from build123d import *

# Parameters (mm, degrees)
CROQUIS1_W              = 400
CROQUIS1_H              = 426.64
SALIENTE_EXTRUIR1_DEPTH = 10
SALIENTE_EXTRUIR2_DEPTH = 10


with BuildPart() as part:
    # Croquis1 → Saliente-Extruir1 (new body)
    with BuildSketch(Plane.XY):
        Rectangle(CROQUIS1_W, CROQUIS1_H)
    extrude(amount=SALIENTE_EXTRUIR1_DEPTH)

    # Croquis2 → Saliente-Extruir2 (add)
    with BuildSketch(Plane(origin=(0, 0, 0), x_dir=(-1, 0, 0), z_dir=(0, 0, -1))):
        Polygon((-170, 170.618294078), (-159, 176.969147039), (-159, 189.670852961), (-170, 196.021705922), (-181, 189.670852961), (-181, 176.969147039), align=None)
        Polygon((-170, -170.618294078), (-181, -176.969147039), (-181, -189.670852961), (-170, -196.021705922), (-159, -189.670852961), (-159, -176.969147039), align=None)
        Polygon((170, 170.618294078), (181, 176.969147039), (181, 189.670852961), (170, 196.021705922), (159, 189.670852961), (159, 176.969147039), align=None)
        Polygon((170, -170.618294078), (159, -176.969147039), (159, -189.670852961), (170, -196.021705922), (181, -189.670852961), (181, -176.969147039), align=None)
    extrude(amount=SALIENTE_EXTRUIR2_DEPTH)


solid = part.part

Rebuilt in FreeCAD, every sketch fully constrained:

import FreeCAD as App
import Part
import Sketcher

V = App.Vector
Q = App.Units.Quantity

doc = App.newDocument("Part")
body = doc.addObject("PartDesign::Body", "Body")

# Sketch on XY plane
sketch1 = body.newObject("Sketcher::SketchObject", "Sketch")
sketch1.AttachmentSupport = (doc.getObject("XY_Plane"), [""])
sketch1.MapMode = "FlatFace"
sketch1.addGeometry(Part.LineSegment(V(-200, 213, 0), V(-200, -213, 0)), False)
sketch1.addGeometry(Part.LineSegment(V(-200, -213, 0), V(200, -213, 0)), False)
sketch1.addGeometry(Part.LineSegment(V(200, -213, 0), V(200, 213, 0)), False)
sketch1.addGeometry(Part.LineSegment(V(200, 213, 0), V(-200, 213, 0)), False)
sketch1.addConstraint(Sketcher.Constraint("Coincident", 0, 2, 1, 1))
sketch1.addConstraint(Sketcher.Constraint("Coincident", 1, 2, 2, 1))
sketch1.addConstraint(Sketcher.Constraint("Coincident", 2, 2, 3, 1))
sketch1.addConstraint(Sketcher.Constraint("Coincident", 3, 2, 0, 1))
sketch1.addConstraint(Sketcher.Constraint("Vertical", 0))
sketch1.addConstraint(Sketcher.Constraint("Horizontal", 1))
sketch1.addConstraint(Sketcher.Constraint("Vertical", 2))
sketch1.addConstraint(Sketcher.Constraint("Horizontal", 3))
sketch1.addConstraint(Sketcher.Constraint("Symmetric", 0, 2, 2, 2, -1, 1))
sketch1.addConstraint(Sketcher.Constraint("DistanceX", 1, 1, 1, 2, 400.0))
sketch1.addConstraint(Sketcher.Constraint("DistanceY", 0, 2, 0, 1, 426.64))
pad1 = body.newObject("PartDesign::Pad", "Pad")
pad1.Profile = sketch1
pad1.Length = 10

# Sketch on XY plane
sketch2 = body.newObject("Sketcher::SketchObject", "Sketch001")
sketch2.AttachmentSupport = (doc.getObject("XY_Plane"), [""])
sketch2.MapMode = "FlatFace"
sketch2.addGeometry(Part.LineSegment(V(170, 171, 0), V(159, 177, 0)), False)
sketch2.addGeometry(Part.LineSegment(V(159, 177, 0), V(159, 190, 0)), False)
sketch2.addGeometry(Part.LineSegment(V(159, 190, 0), V(170, 196, 0)), False)
sketch2.addGeometry(Part.LineSegment(V(170, 196, 0), V(181, 190, 0)), False)
sketch2.addGeometry(Part.LineSegment(V(181, 190, 0), V(181, 177, 0)), False)
sketch2.addGeometry(Part.LineSegment(V(181, 177, 0), V(170, 171, 0)), False)
sketch2.addGeometry(Part.LineSegment(V(170, -171, 0), V(181, -177, 0)), False)
sketch2.addGeometry(Part.LineSegment(V(181, -177, 0), V(181, -190, 0)), False)
sketch2.addGeometry(Part.LineSegment(V(181, -190, 0), V(170, -196, 0)), False)
sketch2.addGeometry(Part.LineSegment(V(170, -196, 0), V(159, -190, 0)), False)
sketch2.addGeometry(Part.LineSegment(V(159, -190, 0), V(159, -177, 0)), False)
sketch2.addGeometry(Part.LineSegment(V(159, -177, 0), V(170, -171, 0)), False)
sketch2.addGeometry(Part.LineSegment(V(-170, 171, 0), V(-181, 177, 0)), False)
sketch2.addGeometry(Part.LineSegment(V(-181, 177, 0), V(-181, 190, 0)), False)
sketch2.addGeometry(Part.LineSegment(V(-181, 190, 0), V(-170, 196, 0)), False)
sketch2.addGeometry(Part.LineSegment(V(-170, 196, 0), V(-159, 190, 0)), False)
sketch2.addGeometry(Part.LineSegment(V(-159, 190, 0), V(-159, 177, 0)), False)
sketch2.addGeometry(Part.LineSegment(V(-159, 177, 0), V(-170, 171, 0)), False)
sketch2.addGeometry(Part.LineSegment(V(-170, -171, 0), V(-159, -177, 0)), False)
sketch2.addGeometry(Part.LineSegment(V(-159, -177, 0), V(-159, -190, 0)), False)
sketch2.addGeometry(Part.LineSegment(V(-159, -190, 0), V(-170, -196, 0)), False)
sketch2.addGeometry(Part.LineSegment(V(-170, -196, 0), V(-181, -190, 0)), False)
sketch2.addGeometry(Part.LineSegment(V(-181, -190, 0), V(-181, -177, 0)), False)
sketch2.addGeometry(Part.LineSegment(V(-181, -177, 0), V(-170, -171, 0)), False)
sketch2.addConstraint(Sketcher.Constraint("Coincident", 0, 2, 1, 1))
sketch2.addConstraint(Sketcher.Constraint("Coincident", 1, 2, 2, 1))
sketch2.addConstraint(Sketcher.Constraint("Coincident", 2, 2, 3, 1))
sketch2.addConstraint(Sketcher.Constraint("Coincident", 3, 2, 4, 1))
sketch2.addConstraint(Sketcher.Constraint("Coincident", 4, 2, 5, 1))
sketch2.addConstraint(Sketcher.Constraint("Coincident", 5, 2, 0, 1))
sketch2.addConstraint(Sketcher.Constraint("Coincident", 6, 2, 7, 1))
sketch2.addConstraint(Sketcher.Constraint("Coincident", 7, 2, 8, 1))
sketch2.addConstraint(Sketcher.Constraint("Coincident", 8, 2, 9, 1))
sketch2.addConstraint(Sketcher.Constraint("Coincident", 9, 2, 10, 1))
sketch2.addConstraint(Sketcher.Constraint("Coincident", 10, 2, 11, 1))
sketch2.addConstraint(Sketcher.Constraint("Coincident", 11, 2, 6, 1))
sketch2.addConstraint(Sketcher.Constraint("Coincident", 12, 2, 13, 1))
sketch2.addConstraint(Sketcher.Constraint("Coincident", 13, 2, 14, 1))
sketch2.addConstraint(Sketcher.Constraint("Coincident", 14, 2, 15, 1))
sketch2.addConstraint(Sketcher.Constraint("Coincident", 15, 2, 16, 1))
sketch2.addConstraint(Sketcher.Constraint("Coincident", 16, 2, 17, 1))
sketch2.addConstraint(Sketcher.Constraint("Coincident", 17, 2, 12, 1))
sketch2.addConstraint(Sketcher.Constraint("Coincident", 18, 2, 19, 1))
sketch2.addConstraint(Sketcher.Constraint("Coincident", 19, 2, 20, 1))
sketch2.addConstraint(Sketcher.Constraint("Coincident", 20, 2, 21, 1))
sketch2.addConstraint(Sketcher.Constraint("Coincident", 21, 2, 22, 1))
sketch2.addConstraint(Sketcher.Constraint("Coincident", 22, 2, 23, 1))
sketch2.addConstraint(Sketcher.Constraint("Coincident", 23, 2, 18, 1))
sketch2.addConstraint(Sketcher.Constraint("Vertical", 1))
sketch2.addConstraint(Sketcher.Constraint("Vertical", 4))
sketch2.addConstraint(Sketcher.Constraint("Vertical", 7))
sketch2.addConstraint(Sketcher.Constraint("Vertical", 10))
sketch2.addConstraint(Sketcher.Constraint("Vertical", 13))
sketch2.addConstraint(Sketcher.Constraint("Vertical", 16))
sketch2.addConstraint(Sketcher.Constraint("Vertical", 19))
sketch2.addConstraint(Sketcher.Constraint("Vertical", 22))
sketch2.addConstraint(Sketcher.Constraint("Symmetric", 6, 2, 12, 2, -1, 1))
sketch2.addConstraint(Sketcher.Constraint("Symmetric", 8, 2, 14, 2, -1, 1))
sketch2.addConstraint(Sketcher.Constraint("Symmetric", 9, 2, 15, 2, -1, 1))
sketch2.addConstraint(Sketcher.Constraint("Symmetric", 11, 2, 17, 2, -1, 1))
sketch2.addConstraint(Sketcher.Constraint("Symmetric", 0, 2, 18, 2, -1, 1))
sketch2.addConstraint(Sketcher.Constraint("Symmetric", 2, 2, 20, 2, -1, 1))
sketch2.addConstraint(Sketcher.Constraint("Symmetric", 3, 2, 21, 2, -1, 1))
sketch2.addConstraint(Sketcher.Constraint("Symmetric", 5, 2, 23, 2, -1, 1))
sketch2.addConstraint(Sketcher.Constraint("Symmetric", 4, 2, 12, 2, -2))
sketch2.addConstraint(Sketcher.Constraint("Symmetric", 2, 2, 14, 2, -2))
sketch2.addConstraint(Sketcher.Constraint("Symmetric", 1, 2, 15, 2, -2))
sketch2.addConstraint(Sketcher.Constraint("Symmetric", 5, 2, 17, 2, -2))
sketch2.addConstraint(Sketcher.Constraint("Parallel", 0, 3))
sketch2.addConstraint(Sketcher.Constraint("Parallel", 2, 5))
sketch2.addConstraint(Sketcher.Constraint("Parallel", 3, 6))
sketch2.addConstraint(Sketcher.Constraint("Parallel", 5, 8))
sketch2.addConstraint(Sketcher.Constraint("Parallel", 8, 11))
sketch2.addConstraint(Sketcher.Constraint("Parallel", 11, 14))
sketch2.addConstraint(Sketcher.Constraint("Parallel", 14, 17))
sketch2.addConstraint(Sketcher.Constraint("Parallel", 17, 20))
sketch2.addConstraint(Sketcher.Constraint("Parallel", 20, 23))
sketch2.addConstraint(Sketcher.Constraint("Horizontal", 1, 2, 3, 2))
sketch2.addConstraint(Sketcher.Constraint("Horizontal", 0, 2, 4, 2))
sketch2.addConstraint(Sketcher.Constraint("Angle", 0, Q("150 deg")))
sketch2.addConstraint(Sketcher.Constraint("DistanceX", -1, 1, 0, 2, 159.0))
sketch2.addConstraint(Sketcher.Constraint("DistanceX", -1, 1, 2, 2, 170.0))
sketch2.addConstraint(Sketcher.Constraint("DistanceY", 6, 2, 3, 2, 366.64))
sketch2.addConstraint(Sketcher.Constraint("DistanceY", 1, 1, 1, 2, 12.701706))
pad2 = body.newObject("PartDesign::Pad", "Pad001")
pad2.Profile = sketch2
pad2.Length = 10
pad2.Reversed = True

doc.recompute()
